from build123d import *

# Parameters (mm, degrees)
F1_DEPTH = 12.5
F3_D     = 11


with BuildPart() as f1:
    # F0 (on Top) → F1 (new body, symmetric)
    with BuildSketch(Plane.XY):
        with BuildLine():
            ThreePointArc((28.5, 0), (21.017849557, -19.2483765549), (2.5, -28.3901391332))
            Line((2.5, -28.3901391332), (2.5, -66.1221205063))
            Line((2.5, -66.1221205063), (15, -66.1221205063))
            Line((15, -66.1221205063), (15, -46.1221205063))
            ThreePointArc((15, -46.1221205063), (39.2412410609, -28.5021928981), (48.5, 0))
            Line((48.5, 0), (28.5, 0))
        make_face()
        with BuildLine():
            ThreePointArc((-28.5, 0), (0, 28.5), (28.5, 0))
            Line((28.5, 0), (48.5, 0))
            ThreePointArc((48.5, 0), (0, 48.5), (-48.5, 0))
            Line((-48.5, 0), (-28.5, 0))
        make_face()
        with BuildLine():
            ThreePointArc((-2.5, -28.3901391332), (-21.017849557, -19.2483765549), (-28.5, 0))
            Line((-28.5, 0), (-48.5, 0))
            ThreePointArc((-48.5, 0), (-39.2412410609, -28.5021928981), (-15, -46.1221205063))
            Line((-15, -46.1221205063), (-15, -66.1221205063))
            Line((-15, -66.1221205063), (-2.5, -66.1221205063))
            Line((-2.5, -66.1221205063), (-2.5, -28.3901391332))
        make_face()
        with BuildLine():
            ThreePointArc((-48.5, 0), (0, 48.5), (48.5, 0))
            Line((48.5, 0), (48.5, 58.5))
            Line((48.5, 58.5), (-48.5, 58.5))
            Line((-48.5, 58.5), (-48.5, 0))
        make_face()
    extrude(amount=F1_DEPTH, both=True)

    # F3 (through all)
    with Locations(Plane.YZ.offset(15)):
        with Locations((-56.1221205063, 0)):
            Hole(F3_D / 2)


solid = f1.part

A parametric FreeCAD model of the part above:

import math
import FreeCAD as App
import Part
import Sketcher
Q = App.Units.Quantity

doc = App.newDocument("Part")
body = doc.addObject("PartDesign::Body", "Body")

sketch1 = body.newObject("Sketcher::SketchObject", "Sketch")
sketch1.AttachmentSupport = (doc.getObject("XY_Plane"), [""])
sketch1.MapMode = "FlatFace"
sketch1.addGeometry([
    Part.ArcOfCircle(Part.Circle(App.Vector(0, 0, 0), App.Vector(0, 0, 1), 28), math.radians(-85), math.radians(0)),
    Part.LineSegment(App.Vector(2, -28, 0), App.Vector(2, -66, 0)),
    Part.LineSegment(App.Vector(2, -66, 0), App.Vector(15, -66, 0)),
    Part.LineSegment(App.Vector(15, -66, 0), App.Vector(15, -46, 0)),
    Part.ArcOfCircle(Part.Circle(App.Vector(0, 0, 0), App.Vector(0, 0, 1), 48), math.radians(-72), math.radians(0)),
    Part.LineSegment(App.Vector(48, 0, 0), App.Vector(48, 58, 0)),
    Part.LineSegment(App.Vector(48, 58, 0), App.Vector(-48, 58, 0)),
    Part.LineSegment(App.Vector(-48, 58, 0), App.Vector(-48, 0, 0)),
    Part.ArcOfCircle(Part.Circle(App.Vector(0, 0, 0), App.Vector(0, 0, 1), 48), math.radians(180), math.radians(252)),
    Part.LineSegment(App.Vector(-15, -46, 0), App.Vector(-15, -66, 0)),
    Part.LineSegment(App.Vector(-15, -66, 0), App.Vector(-2, -66, 0)),
    Part.LineSegment(App.Vector(-2, -66, 0), App.Vector(-2, -28, 0)),
    Part.ArcOfCircle(Part.Circle(App.Vector(0, 0, 0), App.Vector(0, 0, 1), 28), math.radians(180), math.radians(265)),
    Part.ArcOfCircle(Part.Circle(App.Vector(0, 0, 0), App.Vector(0, 0, 1), 28), math.radians(0), math.radians(180)),
], False)
sketch1.addConstraint([
    Sketcher.Constraint("Coincident", 0, 1, 1, 1),
    Sketcher.Constraint("Coincident", 1, 2, 2, 1),
    Sketcher.Constraint("Coincident", 2, 2, 3, 1),
    Sketcher.Constraint("Coincident", 3, 2, 4, 1),
    Sketcher.Constraint("Tangent", 4, 2, 5, 1),
    Sketcher.Constraint("Coincident", 5, 2, 6, 1),
    Sketcher.Constraint("Coincident", 6, 2, 7, 1),
    Sketcher.Constraint("Tangent", 7, 2, 8, 1),
    Sketcher.Constraint("Coincident", 8, 2, 9, 1),
    Sketcher.Constraint("Coincident", 9, 2, 10, 1),
    Sketcher.Constraint("Coincident", 10, 2, 11, 1),
    Sketcher.Constraint("Coincident", 11, 2, 12, 2),
    Sketcher.Constraint("Tangent", 12, 1, 13, 2),
    Sketcher.Constraint("Tangent", 13, 1, 0, 2),
    Sketcher.Constraint("Vertical", 1),
    Sketcher.Constraint("Horizontal", 2),
    Sketcher.Constraint("Vertical", 3),
    Sketcher.Constraint("Vertical", 5),
    Sketcher.Constraint("Horizontal", 6),
    Sketcher.Constraint("Vertical", 7),
    Sketcher.Constraint("Vertical", 9),
    Sketcher.Constraint("Horizontal", 10),
    Sketcher.Constraint("Vertical", 11),
    Sketcher.Constraint("Coincident", 0, 3, -1, 1),
    Sketcher.Constraint("Coincident", 4, 3, -1, 1),
    Sketcher.Constraint("Coincident", 8, 3, -1, 1),
    Sketcher.Constraint("Equal", 4, 8),
    Sketcher.Constraint("Equal", 0, 12),
    Sketcher.Constraint("Equal", 12, 13),
    Sketcher.Constraint("Symmetric", 2, 2, 9, 2, -2),
    Sketcher.Constraint("PointOnObject", 12, 1, -1),
    Sketcher.Constraint("PointOnObject", 13, 1, -1),
    Sketcher.Constraint("Horizontal", 0, 1, 11, 2),
    Sketcher.Constraint("Radius", 0, Q("28.5 mm")),
    Sketcher.Constraint("Radius", 4, Q("48.5 mm")),
    Sketcher.Constraint("DistanceY", 3, 1, 3, 2, Q("20 mm")),
    Sketcher.Constraint("DistanceX", 2, 1, 2, 2, Q("12.5 mm")),
    Sketcher.Constraint("DistanceY", 5, 1, 5, 2, Q("58.5 mm")),
    Sketcher.Constraint("DistanceX", -1, 1, 2, 2, Q("15 mm")),
])
pad1 = body.newObject("PartDesign::Pad", "Pad")
pad1.Profile = sketch1
pad1.Length = 25
pad1.Midplane = True

sketch2 = body.newObject("Sketcher::SketchObject", "Sketch001")
sketch2.AttachmentSupport = (doc.getObject("YZ_Plane"), [""])
sketch2.MapMode = "FlatFace"
sketch2.AttachmentOffset = App.Placement(App.Vector(0, 0, 15), App.Rotation())
sketch2.addGeometry(Part.Circle(App.Vector(-56, 0, 0), App.Vector(0, 0, 1), 6), False)
sketch2.addConstraint([
    Sketcher.Constraint("PointOnObject", 0, 3, -1),
    Sketcher.Constraint("Diameter", 0, Q("11 mm")),
    Sketcher.Constraint("DistanceX", 0, 3, -1, 1, Q("56.122121 mm")),
])
doc.recompute()
hole = body.newObject("PartDesign::Hole", "Hole")
hole.Profile = sketch2
hole.ThreadType = "None"
hole.Diameter = 11
hole.DepthType = "ThroughAll"

doc.recompute()
